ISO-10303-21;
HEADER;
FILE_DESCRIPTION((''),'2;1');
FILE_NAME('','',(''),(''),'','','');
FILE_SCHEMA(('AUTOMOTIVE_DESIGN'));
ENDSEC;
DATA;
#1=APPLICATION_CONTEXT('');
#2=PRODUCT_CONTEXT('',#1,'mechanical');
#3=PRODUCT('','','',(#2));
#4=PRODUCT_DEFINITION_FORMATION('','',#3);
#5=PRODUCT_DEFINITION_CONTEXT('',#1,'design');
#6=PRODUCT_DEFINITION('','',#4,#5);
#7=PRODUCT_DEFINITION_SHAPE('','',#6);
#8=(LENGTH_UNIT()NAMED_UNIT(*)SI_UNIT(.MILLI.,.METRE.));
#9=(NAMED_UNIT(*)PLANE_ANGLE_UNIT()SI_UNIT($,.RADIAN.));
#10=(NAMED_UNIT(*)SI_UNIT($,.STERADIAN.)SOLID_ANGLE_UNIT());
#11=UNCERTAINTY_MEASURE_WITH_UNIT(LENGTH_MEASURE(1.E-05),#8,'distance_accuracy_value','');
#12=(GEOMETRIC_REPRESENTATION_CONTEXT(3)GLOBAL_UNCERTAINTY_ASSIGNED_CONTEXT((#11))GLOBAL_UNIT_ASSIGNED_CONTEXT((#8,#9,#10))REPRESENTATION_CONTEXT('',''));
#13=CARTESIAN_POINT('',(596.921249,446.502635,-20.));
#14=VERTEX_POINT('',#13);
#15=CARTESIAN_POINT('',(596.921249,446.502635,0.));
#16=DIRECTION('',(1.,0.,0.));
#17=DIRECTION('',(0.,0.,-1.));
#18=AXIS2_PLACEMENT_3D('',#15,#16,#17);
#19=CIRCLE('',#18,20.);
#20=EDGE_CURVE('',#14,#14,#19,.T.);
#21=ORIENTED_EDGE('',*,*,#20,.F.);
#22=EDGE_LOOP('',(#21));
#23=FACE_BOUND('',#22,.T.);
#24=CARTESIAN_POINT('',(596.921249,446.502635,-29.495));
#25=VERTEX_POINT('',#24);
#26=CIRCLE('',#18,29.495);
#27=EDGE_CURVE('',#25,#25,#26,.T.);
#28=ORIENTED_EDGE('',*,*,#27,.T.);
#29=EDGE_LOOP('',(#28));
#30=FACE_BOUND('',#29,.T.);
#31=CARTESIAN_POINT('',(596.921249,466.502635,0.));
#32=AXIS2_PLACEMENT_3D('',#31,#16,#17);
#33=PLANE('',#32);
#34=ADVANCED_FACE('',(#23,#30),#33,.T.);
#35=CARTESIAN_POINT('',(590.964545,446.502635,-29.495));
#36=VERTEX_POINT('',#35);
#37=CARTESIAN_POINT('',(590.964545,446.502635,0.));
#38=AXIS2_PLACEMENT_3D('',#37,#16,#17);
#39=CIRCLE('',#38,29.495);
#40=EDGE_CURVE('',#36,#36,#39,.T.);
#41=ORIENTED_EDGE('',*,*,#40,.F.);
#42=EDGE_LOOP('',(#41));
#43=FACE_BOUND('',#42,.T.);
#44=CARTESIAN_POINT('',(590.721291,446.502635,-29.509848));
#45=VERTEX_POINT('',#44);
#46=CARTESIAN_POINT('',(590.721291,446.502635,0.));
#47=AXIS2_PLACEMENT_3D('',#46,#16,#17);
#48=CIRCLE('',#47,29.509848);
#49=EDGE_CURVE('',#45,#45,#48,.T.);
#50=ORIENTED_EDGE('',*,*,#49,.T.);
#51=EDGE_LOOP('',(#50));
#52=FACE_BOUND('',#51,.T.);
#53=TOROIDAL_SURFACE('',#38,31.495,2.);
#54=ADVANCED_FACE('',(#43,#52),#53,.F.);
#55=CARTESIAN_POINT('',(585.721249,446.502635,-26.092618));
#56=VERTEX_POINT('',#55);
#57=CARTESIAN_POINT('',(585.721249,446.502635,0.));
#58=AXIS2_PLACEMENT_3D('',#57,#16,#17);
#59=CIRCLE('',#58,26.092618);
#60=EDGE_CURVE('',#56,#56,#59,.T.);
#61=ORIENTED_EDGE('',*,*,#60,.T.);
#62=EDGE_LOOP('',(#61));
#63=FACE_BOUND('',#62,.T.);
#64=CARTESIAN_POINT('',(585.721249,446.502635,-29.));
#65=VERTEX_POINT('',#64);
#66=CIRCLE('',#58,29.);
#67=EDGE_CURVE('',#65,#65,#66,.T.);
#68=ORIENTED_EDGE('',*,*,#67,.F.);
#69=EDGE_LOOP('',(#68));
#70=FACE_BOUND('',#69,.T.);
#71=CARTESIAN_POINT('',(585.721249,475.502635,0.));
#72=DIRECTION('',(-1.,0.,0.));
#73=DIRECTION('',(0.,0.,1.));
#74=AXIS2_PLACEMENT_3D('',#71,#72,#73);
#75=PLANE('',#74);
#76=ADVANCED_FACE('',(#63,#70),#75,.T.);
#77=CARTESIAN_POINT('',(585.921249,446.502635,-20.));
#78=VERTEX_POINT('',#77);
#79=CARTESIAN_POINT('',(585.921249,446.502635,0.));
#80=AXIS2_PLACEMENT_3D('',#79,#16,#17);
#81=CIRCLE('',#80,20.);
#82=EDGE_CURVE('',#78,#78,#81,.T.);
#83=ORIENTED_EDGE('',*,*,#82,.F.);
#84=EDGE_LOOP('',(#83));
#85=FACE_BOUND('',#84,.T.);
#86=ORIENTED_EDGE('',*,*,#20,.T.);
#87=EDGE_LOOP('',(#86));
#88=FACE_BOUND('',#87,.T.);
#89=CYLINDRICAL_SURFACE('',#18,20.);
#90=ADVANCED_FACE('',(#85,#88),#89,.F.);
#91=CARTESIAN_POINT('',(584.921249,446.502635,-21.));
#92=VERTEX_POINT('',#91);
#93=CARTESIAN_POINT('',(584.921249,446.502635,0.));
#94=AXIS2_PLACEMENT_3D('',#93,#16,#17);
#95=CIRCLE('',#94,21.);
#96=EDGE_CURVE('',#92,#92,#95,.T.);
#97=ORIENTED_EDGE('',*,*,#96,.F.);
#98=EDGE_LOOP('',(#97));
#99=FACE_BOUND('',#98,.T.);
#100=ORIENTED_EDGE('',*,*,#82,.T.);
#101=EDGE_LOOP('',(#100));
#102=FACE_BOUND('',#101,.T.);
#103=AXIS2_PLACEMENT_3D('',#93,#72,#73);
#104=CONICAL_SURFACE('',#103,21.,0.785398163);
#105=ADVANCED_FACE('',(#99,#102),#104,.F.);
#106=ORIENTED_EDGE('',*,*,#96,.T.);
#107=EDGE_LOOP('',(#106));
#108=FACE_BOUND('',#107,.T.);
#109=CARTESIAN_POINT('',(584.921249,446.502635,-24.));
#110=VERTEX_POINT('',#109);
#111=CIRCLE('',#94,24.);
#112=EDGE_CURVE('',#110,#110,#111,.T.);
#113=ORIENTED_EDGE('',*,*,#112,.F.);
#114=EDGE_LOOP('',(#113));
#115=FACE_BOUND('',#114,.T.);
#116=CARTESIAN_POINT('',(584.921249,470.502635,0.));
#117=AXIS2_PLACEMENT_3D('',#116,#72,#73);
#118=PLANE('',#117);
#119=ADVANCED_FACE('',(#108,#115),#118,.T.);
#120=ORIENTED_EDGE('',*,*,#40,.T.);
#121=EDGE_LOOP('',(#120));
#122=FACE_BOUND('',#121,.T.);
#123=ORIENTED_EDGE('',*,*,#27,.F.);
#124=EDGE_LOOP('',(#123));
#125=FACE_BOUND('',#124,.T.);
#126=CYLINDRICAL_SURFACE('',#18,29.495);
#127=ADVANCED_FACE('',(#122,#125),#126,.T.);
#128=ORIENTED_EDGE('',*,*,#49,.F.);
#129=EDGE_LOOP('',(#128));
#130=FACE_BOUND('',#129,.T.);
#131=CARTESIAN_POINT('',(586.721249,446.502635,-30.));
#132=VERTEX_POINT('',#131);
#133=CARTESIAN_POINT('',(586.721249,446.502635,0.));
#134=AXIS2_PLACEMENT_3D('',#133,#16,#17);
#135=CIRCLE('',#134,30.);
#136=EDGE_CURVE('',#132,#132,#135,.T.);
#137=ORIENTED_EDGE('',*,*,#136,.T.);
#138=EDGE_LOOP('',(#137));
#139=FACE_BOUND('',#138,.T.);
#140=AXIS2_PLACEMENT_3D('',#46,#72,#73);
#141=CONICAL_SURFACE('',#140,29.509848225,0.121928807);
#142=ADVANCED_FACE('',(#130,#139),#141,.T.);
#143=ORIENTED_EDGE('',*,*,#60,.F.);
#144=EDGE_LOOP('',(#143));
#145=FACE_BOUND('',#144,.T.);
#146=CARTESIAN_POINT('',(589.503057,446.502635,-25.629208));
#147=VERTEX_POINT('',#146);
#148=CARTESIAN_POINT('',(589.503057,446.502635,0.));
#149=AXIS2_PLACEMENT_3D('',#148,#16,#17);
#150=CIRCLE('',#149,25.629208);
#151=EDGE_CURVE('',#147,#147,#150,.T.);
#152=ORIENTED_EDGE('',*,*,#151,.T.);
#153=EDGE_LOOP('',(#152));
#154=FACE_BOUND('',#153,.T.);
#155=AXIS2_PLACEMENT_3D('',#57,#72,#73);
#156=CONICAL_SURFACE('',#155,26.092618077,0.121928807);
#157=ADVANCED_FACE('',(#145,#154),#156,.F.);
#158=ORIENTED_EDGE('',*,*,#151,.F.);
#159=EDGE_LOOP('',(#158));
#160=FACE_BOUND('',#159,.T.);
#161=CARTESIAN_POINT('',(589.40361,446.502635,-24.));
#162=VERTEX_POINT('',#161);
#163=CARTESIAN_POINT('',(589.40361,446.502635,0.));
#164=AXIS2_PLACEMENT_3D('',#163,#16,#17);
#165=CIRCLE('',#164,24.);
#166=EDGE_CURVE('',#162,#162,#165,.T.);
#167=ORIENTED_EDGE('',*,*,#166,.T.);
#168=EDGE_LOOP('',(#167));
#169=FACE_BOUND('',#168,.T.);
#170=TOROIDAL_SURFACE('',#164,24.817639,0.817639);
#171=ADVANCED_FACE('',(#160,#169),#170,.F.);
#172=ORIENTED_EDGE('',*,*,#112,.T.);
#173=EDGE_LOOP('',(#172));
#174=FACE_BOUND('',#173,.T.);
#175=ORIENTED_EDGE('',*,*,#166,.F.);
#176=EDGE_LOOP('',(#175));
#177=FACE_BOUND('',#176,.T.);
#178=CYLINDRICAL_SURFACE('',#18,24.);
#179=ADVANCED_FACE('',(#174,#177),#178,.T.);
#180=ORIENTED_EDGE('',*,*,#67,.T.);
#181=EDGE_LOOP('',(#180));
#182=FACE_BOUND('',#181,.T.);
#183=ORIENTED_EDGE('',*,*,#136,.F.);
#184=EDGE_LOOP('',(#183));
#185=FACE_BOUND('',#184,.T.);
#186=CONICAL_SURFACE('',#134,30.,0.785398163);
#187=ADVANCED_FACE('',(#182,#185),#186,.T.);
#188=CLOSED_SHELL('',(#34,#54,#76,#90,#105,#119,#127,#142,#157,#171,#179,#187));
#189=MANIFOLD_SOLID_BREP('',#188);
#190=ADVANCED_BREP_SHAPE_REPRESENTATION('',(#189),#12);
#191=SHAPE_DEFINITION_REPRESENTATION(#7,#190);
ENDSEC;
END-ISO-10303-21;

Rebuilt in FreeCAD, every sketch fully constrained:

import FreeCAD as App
import Part
import Sketcher
from FreeCAD import Vector

doc = App.newDocument("Part")
body = doc.addObject("PartDesign::Body", "Body")

# Sketch on XY plane
sketch1 = doc.addObject("Sketcher::SketchObject", "Sketch")
body.addObject(sketch1)
sketch1.AttachmentSupport = (doc.XY_Plane, [""])
sketch1.MapMode = "FlatFace"
sketch1.addGeometry([
    Part.LineSegment(Vector(585.921249, 466.502635, 0), Vector(596.921249, 466.502635, 0)),  # 0
    Part.LineSegment(Vector(596.921249, 466.502635, 0), Vector(596.921249, 475.997635, 0)),  # 1
    Part.LineSegment(Vector(596.921249, 475.997635, 0), Vector(590.964545, 475.997635, 0)),  # 2
    Part.BSplineCurve([Vector(590.721291, 476.012483, 0), Vector(590.802024, 476.00259, 0), Vector(590.883209, 475.997635, 0), Vector(590.964545, 475.997635, 0)], [4, 4], [0, 1], False, 3, [1, 0.998761497, 0.998761497, 1], False),  # 3
    Part.LineSegment(Vector(590.721291, 476.012483, 0), Vector(586.721249, 476.502635, 0)),  # 4
    Part.LineSegment(Vector(586.721249, 476.502635, 0), Vector(585.721249, 475.502635, 0)),  # 5
    Part.LineSegment(Vector(585.721249, 475.502635, 0), Vector(585.721249, 472.595253, 0)),  # 6
    Part.LineSegment(Vector(585.721249, 472.595253, 0), Vector(589.503057, 472.131843, 0)),  # 7
    Part.BSplineCurve([Vector(589.503057, 472.131843, 0), Vector(590.947205, 471.954882, 0), Vector(590.85856, 470.502635, 0), Vector(589.40361, 470.502635, 0)], [4, 4], [0, 1], False, 3, [1, 0.373951098, 0.373951098, 1], False),  # 8
    Part.LineSegment(Vector(589.40361, 470.502635, 0), Vector(584.921249, 470.502635, 0)),  # 9
    Part.LineSegment(Vector(584.921249, 470.502635, 0), Vector(584.921249, 467.502635, 0)),  # 10
    Part.LineSegment(Vector(584.921249, 467.502635, 0), Vector(585.921249, 466.502635, 0)),  # 11
], False)
sketch1.addGeometry(Part.LineSegment(Vector(596.921249, 446.502635, 0), Vector(584.921249, 446.502635, 0)), True)  # axis
sketch1.addConstraint([
    Sketcher.Constraint("Block", 3),
    Sketcher.Constraint("Block", 8),
    Sketcher.Constraint("Coincident", 0, 2, 1, 1),
    Sketcher.Constraint("Coincident", 1, 2, 2, 1),
    Sketcher.Constraint("Coincident", 2, 2, 3, 2),
    Sketcher.Constraint("Coincident", 3, 1, 4, 1),
    Sketcher.Constraint("Coincident", 4, 2, 5, 1),
    Sketcher.Constraint("Coincident", 5, 2, 6, 1),
    Sketcher.Constraint("Coincident", 6, 2, 7, 1),
    Sketcher.Constraint("Coincident", 7, 2, 8, 1),
    Sketcher.Constraint("Coincident", 8, 2, 9, 1),
    Sketcher.Constraint("Coincident", 9, 2, 10, 1),
    Sketcher.Constraint("Coincident", 10, 2, 11, 1),
    Sketcher.Constraint("Coincident", 11, 2, 0, 1),
    Sketcher.Constraint("Horizontal", 0),
    Sketcher.Constraint("Vertical", 1),
    Sketcher.Constraint("Horizontal", 2),
    Sketcher.Constraint("Vertical", 6),
    Sketcher.Constraint("Horizontal", 9),
    Sketcher.Constraint("Vertical", 10),
    Sketcher.Constraint("Horizontal", 12),
    Sketcher.Constraint("DistanceX", 0, 1, 0, 2, 11.0),
    Sketcher.Constraint("DistanceX", 12, 2, 12, 1, 12.0),
    Sketcher.Constraint("DistanceY", 10, 2, 10, 1, 3.0),
    Sketcher.Constraint("DistanceY", 0, 2, 4, 2, 10.0),
    Sketcher.Constraint("DistanceX", 5, 2, 4, 2, 1.0),
    Sketcher.Constraint("DistanceY", 5, 2, 4, 2, 1.0),
    Sketcher.Constraint("DistanceY", 9, 2, 5, 2, 5.0),
    Sketcher.Constraint("DistanceX", 10, 2, 11, 2, 1.0),
    Sketcher.Constraint("DistanceY", 12, 1, 0, 2, 20.0),
    Sketcher.Constraint("DistanceX", 11, 2, 12, 1, 11.0),
    Sketcher.Constraint("DistanceX", 4, 2, 1, 2, 10.2),
    Sketcher.Constraint("DistanceX", 9, 2, 9, 1, 4.482361),
    Sketcher.Constraint("DistanceY", 6, 2, 6, 1, 2.907382),
])
revolution = doc.addObject("PartDesign::Revolution", "Revolution")
body.addObject(revolution)
revolution.Profile = sketch1
revolution.ReferenceAxis = (sketch1, ["Axis0"])
revolution.Angle = 360

doc.recompute()
